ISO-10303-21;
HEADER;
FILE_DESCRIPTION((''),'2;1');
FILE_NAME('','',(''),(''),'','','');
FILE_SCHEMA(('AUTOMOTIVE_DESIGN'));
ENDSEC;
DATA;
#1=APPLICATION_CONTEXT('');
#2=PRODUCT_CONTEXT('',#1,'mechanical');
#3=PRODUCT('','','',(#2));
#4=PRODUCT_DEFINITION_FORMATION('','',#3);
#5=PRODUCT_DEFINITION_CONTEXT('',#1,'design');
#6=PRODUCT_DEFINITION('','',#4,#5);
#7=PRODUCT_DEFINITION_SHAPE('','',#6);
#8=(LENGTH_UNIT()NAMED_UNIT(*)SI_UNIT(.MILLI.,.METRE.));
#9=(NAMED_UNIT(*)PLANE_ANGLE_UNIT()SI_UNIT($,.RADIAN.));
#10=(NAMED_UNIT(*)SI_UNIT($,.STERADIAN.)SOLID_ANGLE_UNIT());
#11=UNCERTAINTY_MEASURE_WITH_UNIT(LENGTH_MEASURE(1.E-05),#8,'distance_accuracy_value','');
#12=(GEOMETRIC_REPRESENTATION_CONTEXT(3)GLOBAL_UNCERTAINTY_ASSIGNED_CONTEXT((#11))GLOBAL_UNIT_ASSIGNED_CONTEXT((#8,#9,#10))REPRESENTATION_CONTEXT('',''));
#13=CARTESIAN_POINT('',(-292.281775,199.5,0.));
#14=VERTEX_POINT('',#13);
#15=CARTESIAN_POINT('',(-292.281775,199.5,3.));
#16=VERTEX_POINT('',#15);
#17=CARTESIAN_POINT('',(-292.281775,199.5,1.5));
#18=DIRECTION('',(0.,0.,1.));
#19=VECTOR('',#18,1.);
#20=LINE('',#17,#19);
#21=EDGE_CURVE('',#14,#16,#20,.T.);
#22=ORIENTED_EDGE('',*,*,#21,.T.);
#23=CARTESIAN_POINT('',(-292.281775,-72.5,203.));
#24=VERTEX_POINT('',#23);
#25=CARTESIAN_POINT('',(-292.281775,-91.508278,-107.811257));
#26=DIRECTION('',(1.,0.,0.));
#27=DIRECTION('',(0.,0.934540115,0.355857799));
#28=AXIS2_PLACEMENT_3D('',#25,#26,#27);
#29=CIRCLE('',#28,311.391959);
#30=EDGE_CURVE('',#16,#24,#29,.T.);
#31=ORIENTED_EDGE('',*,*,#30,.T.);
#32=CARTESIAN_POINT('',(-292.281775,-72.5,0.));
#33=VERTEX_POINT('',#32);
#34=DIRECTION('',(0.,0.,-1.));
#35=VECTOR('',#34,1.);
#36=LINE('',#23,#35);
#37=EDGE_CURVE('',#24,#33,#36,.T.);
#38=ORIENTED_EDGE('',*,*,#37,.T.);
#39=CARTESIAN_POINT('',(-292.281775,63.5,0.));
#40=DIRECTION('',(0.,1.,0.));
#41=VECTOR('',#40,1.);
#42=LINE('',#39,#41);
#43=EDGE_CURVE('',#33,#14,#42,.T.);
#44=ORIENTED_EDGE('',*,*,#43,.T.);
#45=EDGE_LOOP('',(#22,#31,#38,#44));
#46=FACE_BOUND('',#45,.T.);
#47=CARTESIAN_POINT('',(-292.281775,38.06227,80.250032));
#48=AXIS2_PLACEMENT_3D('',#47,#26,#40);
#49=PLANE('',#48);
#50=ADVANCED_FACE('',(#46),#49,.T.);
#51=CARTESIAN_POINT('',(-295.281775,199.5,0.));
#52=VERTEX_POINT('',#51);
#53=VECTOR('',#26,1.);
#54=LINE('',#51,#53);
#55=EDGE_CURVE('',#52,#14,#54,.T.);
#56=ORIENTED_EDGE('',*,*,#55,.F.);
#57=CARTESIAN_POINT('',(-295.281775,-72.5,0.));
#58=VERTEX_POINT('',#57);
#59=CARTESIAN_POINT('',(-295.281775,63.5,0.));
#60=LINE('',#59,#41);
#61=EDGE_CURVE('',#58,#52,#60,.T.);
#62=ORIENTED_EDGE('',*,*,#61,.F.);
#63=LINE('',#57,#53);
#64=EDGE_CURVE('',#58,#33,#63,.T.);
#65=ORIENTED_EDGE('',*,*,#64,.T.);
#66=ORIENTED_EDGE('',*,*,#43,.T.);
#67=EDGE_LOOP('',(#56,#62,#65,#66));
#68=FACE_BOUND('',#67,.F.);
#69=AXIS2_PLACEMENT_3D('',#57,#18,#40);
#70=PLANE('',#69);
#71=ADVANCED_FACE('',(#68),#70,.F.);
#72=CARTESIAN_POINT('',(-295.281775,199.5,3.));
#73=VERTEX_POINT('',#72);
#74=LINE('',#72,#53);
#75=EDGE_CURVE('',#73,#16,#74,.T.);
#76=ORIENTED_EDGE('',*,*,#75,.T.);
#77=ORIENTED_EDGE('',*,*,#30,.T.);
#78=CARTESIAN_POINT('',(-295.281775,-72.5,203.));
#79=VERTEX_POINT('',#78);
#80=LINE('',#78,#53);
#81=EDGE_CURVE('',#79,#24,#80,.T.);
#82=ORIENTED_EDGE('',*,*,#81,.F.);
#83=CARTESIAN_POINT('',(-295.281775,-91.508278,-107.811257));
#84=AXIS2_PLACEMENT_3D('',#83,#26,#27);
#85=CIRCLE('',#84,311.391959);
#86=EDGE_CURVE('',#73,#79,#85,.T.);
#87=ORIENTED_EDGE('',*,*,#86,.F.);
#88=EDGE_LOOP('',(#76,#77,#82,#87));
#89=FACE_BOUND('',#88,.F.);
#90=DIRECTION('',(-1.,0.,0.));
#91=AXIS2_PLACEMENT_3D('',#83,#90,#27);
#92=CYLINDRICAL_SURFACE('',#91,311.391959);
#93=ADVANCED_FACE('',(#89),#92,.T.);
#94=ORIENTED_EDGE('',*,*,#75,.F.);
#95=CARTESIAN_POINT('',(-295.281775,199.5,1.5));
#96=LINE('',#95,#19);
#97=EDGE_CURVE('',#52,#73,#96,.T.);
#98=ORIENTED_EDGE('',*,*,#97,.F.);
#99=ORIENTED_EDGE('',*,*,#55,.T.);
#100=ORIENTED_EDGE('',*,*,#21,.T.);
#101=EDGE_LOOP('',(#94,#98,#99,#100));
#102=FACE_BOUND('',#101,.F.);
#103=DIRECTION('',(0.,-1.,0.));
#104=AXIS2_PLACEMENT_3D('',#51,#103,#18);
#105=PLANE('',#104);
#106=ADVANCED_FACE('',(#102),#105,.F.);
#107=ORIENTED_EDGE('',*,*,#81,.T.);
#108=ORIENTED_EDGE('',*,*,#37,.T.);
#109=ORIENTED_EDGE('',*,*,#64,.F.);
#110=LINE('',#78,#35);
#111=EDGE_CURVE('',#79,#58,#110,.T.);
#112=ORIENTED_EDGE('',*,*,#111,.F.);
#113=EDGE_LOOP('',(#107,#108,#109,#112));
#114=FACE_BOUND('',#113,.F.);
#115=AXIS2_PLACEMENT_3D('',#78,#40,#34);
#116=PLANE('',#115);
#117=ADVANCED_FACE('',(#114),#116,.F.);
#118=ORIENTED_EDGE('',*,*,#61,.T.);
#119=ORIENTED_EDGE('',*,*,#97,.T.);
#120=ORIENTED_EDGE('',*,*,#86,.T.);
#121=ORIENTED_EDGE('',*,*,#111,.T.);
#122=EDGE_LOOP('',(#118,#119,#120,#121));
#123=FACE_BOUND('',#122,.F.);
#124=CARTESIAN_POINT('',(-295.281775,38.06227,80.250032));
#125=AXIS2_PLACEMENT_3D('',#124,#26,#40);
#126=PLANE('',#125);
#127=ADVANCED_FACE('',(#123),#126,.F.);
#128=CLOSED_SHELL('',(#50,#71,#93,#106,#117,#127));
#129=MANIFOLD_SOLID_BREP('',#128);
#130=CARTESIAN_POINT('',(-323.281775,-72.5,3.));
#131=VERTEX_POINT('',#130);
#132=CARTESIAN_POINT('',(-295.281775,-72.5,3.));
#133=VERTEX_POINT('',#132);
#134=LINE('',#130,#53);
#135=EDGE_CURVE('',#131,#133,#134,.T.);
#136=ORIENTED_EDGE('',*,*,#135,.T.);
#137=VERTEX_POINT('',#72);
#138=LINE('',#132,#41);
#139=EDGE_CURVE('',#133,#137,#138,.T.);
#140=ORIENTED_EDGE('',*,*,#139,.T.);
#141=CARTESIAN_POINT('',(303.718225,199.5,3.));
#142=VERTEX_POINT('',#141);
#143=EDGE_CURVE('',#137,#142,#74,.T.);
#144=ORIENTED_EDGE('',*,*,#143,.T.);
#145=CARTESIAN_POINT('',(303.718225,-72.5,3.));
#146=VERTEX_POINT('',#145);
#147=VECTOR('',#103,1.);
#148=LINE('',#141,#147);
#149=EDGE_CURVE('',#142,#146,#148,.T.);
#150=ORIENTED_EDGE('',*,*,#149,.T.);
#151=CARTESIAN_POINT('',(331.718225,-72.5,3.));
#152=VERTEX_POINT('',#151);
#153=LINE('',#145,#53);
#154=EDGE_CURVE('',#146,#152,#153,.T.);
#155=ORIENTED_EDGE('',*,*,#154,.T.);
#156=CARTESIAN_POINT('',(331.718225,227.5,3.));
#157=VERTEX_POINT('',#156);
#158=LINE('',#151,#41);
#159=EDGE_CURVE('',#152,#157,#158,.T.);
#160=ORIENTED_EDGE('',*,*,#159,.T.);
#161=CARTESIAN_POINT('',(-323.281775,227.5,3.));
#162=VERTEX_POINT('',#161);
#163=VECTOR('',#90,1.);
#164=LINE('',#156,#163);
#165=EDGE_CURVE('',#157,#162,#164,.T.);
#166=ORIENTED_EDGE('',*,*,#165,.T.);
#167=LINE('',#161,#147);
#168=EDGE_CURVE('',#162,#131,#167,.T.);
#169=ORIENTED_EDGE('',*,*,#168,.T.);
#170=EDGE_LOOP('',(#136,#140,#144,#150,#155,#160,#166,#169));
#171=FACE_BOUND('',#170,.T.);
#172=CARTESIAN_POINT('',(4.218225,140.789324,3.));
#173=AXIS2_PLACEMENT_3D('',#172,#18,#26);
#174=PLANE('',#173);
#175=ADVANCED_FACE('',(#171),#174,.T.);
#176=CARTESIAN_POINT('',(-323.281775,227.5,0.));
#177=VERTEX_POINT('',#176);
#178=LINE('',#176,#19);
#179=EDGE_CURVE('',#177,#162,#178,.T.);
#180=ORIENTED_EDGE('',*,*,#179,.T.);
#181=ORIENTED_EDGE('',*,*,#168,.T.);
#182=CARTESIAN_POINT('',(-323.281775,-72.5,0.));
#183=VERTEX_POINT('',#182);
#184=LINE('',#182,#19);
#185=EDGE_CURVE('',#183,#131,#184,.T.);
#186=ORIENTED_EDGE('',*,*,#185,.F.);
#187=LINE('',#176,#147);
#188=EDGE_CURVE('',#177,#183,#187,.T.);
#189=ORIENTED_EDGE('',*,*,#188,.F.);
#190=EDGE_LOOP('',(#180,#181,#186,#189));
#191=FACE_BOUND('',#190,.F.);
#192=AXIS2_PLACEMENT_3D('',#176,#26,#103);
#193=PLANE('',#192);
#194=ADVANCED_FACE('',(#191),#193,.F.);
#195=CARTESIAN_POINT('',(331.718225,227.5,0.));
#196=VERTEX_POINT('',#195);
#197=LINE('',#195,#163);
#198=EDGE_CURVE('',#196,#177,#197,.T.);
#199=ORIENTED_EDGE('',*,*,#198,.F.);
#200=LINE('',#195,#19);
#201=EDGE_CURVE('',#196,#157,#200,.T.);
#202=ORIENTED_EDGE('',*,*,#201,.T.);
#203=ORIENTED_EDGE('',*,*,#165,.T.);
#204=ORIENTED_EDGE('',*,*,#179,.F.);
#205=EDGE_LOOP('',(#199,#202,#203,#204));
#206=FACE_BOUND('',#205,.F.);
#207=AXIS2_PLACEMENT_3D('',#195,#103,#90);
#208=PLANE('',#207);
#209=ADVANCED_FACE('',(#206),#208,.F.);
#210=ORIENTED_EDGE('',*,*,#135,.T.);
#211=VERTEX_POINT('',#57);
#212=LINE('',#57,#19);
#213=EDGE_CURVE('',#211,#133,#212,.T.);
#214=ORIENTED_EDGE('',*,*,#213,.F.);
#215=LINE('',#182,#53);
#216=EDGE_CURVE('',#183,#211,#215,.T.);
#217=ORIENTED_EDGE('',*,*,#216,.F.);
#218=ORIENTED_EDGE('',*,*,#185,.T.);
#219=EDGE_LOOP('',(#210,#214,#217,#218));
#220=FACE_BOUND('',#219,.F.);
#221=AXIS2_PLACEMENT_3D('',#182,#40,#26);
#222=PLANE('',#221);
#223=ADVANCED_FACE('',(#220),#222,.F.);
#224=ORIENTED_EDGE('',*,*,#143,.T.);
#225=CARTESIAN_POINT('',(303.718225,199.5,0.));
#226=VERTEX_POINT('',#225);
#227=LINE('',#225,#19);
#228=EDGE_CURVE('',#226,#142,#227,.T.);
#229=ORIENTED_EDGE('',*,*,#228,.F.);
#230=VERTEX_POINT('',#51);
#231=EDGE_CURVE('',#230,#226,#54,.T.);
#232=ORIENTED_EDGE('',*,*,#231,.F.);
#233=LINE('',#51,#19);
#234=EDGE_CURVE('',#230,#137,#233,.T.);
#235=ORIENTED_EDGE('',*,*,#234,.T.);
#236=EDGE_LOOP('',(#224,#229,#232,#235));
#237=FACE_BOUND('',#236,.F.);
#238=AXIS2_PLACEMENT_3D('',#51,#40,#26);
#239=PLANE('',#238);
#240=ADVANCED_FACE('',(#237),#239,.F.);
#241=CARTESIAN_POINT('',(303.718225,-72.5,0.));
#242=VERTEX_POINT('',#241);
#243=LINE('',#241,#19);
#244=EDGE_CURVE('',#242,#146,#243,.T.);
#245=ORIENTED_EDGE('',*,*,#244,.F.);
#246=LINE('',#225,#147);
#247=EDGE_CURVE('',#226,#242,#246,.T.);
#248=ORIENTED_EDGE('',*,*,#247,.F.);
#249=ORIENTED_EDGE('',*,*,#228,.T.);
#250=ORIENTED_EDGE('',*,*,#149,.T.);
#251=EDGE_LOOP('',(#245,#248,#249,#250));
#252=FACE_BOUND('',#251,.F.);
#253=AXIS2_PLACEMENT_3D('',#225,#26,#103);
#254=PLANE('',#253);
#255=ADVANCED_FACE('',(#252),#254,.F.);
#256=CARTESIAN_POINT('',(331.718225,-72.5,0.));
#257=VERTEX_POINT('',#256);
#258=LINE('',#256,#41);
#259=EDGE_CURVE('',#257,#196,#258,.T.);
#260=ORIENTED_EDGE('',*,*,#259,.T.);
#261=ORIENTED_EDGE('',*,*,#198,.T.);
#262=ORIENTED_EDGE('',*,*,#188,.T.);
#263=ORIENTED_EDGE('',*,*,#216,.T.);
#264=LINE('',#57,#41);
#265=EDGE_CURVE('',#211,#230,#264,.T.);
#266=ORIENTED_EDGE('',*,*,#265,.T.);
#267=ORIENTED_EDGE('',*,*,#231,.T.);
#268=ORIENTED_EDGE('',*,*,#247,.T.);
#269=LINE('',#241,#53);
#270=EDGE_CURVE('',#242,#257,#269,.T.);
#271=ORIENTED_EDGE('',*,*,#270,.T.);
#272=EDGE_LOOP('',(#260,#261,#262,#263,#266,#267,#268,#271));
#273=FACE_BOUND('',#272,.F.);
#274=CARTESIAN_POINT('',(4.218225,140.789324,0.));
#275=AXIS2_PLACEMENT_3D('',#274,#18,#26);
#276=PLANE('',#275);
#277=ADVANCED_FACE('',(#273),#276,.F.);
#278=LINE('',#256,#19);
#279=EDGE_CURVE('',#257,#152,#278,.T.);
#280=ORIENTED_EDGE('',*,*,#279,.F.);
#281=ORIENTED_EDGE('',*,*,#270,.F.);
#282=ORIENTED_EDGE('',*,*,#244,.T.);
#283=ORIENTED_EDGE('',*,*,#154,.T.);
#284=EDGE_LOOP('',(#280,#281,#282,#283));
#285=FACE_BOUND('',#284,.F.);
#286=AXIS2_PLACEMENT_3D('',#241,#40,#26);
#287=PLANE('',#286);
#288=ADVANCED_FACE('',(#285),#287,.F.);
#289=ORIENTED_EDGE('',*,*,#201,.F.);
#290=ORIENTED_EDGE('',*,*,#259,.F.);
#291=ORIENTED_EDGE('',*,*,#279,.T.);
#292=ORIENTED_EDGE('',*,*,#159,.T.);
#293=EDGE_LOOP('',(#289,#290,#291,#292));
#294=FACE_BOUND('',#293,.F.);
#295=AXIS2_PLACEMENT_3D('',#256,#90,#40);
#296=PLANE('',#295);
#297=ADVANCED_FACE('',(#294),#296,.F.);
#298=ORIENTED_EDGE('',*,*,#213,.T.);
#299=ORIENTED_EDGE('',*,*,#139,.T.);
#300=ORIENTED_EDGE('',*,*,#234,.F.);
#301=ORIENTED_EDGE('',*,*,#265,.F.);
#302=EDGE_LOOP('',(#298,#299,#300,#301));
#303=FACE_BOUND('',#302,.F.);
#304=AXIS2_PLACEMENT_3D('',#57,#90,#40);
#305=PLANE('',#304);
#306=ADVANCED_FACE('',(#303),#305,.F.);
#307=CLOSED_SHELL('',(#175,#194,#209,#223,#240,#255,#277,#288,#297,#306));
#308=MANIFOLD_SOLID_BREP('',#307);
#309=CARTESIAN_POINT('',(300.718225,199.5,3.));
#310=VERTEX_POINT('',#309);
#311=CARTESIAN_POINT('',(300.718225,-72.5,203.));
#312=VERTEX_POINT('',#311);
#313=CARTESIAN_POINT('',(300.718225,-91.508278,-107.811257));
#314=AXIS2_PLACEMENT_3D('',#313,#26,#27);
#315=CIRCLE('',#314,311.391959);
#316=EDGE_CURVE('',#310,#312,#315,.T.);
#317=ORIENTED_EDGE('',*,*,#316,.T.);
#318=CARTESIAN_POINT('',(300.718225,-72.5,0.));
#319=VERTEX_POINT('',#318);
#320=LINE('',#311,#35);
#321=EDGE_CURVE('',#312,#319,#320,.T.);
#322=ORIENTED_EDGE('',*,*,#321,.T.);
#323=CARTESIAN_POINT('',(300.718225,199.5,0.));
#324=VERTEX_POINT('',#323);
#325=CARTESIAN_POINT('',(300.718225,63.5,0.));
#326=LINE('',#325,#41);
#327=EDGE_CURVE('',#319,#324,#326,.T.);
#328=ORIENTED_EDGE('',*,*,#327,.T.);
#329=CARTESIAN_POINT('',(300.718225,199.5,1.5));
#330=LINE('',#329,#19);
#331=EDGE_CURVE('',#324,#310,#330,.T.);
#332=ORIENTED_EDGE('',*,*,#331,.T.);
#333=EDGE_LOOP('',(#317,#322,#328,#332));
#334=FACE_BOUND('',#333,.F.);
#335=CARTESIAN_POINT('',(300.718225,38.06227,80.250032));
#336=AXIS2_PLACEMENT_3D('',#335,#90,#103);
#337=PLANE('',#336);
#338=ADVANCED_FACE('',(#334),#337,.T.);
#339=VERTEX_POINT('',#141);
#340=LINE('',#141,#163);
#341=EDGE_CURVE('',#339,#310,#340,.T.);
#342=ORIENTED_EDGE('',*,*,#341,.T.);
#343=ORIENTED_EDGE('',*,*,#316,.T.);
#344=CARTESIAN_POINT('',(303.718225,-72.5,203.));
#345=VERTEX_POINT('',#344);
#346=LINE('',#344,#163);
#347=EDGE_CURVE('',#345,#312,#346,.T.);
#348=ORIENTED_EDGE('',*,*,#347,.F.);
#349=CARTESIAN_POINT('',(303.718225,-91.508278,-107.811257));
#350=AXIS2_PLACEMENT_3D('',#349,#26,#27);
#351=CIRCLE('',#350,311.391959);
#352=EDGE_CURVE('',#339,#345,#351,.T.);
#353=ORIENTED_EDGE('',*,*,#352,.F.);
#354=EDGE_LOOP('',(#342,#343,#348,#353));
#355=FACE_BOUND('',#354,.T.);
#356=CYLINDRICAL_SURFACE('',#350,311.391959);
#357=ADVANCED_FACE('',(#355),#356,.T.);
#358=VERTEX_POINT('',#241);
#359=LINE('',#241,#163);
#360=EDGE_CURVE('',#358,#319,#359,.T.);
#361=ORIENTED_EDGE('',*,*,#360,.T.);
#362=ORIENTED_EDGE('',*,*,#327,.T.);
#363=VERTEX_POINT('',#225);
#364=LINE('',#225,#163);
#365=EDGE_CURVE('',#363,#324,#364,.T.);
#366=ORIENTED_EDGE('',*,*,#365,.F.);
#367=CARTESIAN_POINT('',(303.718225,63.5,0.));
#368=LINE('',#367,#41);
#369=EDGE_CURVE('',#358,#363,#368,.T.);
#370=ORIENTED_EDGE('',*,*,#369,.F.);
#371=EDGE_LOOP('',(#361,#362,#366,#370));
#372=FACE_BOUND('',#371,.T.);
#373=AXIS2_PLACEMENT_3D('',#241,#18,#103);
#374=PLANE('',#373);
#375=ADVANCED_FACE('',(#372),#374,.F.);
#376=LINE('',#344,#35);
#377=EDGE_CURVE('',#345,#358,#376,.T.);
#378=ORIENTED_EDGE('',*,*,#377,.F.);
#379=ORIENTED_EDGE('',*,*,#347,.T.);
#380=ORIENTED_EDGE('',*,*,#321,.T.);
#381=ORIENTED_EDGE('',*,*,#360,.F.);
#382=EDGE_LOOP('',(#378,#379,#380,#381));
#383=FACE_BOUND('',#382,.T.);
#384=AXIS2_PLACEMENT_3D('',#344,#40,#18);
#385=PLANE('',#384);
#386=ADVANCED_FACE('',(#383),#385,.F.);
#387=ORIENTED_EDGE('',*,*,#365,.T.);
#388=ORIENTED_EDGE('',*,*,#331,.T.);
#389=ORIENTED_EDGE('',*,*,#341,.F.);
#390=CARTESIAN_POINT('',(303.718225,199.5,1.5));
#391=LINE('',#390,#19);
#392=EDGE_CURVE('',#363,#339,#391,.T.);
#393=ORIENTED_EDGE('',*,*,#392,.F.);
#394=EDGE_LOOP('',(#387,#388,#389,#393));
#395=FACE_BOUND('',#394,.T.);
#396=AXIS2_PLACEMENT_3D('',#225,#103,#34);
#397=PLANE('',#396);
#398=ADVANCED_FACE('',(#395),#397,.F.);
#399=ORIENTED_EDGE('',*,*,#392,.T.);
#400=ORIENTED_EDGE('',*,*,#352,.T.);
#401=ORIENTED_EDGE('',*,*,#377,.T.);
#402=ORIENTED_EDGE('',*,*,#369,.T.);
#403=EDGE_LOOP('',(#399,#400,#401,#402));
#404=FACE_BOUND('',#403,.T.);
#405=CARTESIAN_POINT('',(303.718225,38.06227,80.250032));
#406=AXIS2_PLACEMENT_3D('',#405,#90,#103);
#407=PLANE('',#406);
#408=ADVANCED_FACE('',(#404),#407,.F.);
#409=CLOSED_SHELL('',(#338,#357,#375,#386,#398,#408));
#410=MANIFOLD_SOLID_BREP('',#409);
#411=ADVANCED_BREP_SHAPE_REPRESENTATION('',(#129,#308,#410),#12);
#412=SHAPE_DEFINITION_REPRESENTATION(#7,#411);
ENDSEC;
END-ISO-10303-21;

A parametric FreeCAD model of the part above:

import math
import FreeCAD as App
import Part
import Sketcher
from FreeCAD import Vector
Q = App.Units.Quantity

doc = App.newDocument("Part")
body = doc.addObject("PartDesign::Body", "Body")

sketch1 = doc.addObject("Sketcher::SketchObject", "Sketch")
body.addObject(sketch1)
sketch1.AttachmentSupport = (doc.XY_Plane, [""])
sketch1.MapMode = "FlatFace"
sketch1.addGeometry(Part.LineSegment(Vector(304, -72, 0), Vector(332, -72, 0)), False)
sketch1.addGeometry(Part.LineSegment(Vector(332, -72, 0), Vector(332, 228, 0)), False)
sketch1.addGeometry(Part.LineSegment(Vector(332, 228, 0), Vector(-323, 228, 0)), False)
sketch1.addGeometry(Part.LineSegment(Vector(-323, 228, 0), Vector(-323, -72, 0)), False)
sketch1.addGeometry(Part.LineSegment(Vector(-323, -72, 0), Vector(-295, -72, 0)), False)
sketch1.addGeometry(Part.LineSegment(Vector(-295, -72, 0), Vector(-295, 200, 0)), False)
sketch1.addGeometry(Part.LineSegment(Vector(-295, 200, 0), Vector(304, 200, 0)), False)
sketch1.addGeometry(Part.LineSegment(Vector(304, 200, 0), Vector(304, -72, 0)), False)
sketch1.addConstraint(Sketcher.Constraint("Coincident", 0, 2, 1, 1))
sketch1.addConstraint(Sketcher.Constraint("Coincident", 1, 2, 2, 1))
sketch1.addConstraint(Sketcher.Constraint("Coincident", 2, 2, 3, 1))
sketch1.addConstraint(Sketcher.Constraint("Coincident", 3, 2, 4, 1))
sketch1.addConstraint(Sketcher.Constraint("Coincident", 4, 2, 5, 1))
sketch1.addConstraint(Sketcher.Constraint("Coincident", 5, 2, 6, 1))
sketch1.addConstraint(Sketcher.Constraint("Coincident", 6, 2, 7, 1))
sketch1.addConstraint(Sketcher.Constraint("Coincident", 7, 2, 0, 1))
sketch1.addConstraint(Sketcher.Constraint("Horizontal", 0))
sketch1.addConstraint(Sketcher.Constraint("Vertical", 1))
sketch1.addConstraint(Sketcher.Constraint("Horizontal", 2))
sketch1.addConstraint(Sketcher.Constraint("Vertical", 3))
sketch1.addConstraint(Sketcher.Constraint("Horizontal", 4))
sketch1.addConstraint(Sketcher.Constraint("Vertical", 5))
sketch1.addConstraint(Sketcher.Constraint("Horizontal", 6))
sketch1.addConstraint(Sketcher.Constraint("Vertical", 7))
sketch1.addConstraint(Sketcher.Constraint("Horizontal", 0, 2, 3, 2))
sketch1.addConstraint(Sketcher.Constraint("Equal", 0, 4))
sketch1.addConstraint(Sketcher.Constraint("DistanceX", 0, 1, 0, 2, Q("28 mm")))
sketch1.addConstraint(Sketcher.Constraint("DistanceX", 2, 2, 2, 1, Q("655 mm")))
sketch1.addConstraint(Sketcher.Constraint("DistanceY", 1, 1, 1, 2, Q("300 mm")))
sketch1.addConstraint(Sketcher.Constraint("DistanceY", 5, 1, 5, 2, Q("272 mm")))
sketch1.addConstraint(Sketcher.Constraint("DistanceY", 0, 2, -1, 1, Q("72.5 mm")))
sketch1.addConstraint(Sketcher.Constraint("DistanceX", -1, 1, 0, 2, Q("331.718225 mm")))
pad1 = doc.addObject("PartDesign::Pad", "Pad")
body.addObject(pad1)
pad1.Profile = sketch1
pad1.Length = 3
body2 = doc.addObject("PartDesign::Body", "Body001")

sketch2 = doc.addObject("Sketcher::SketchObject", "Sketch001")
body2.addObject(sketch2)
sketch2.AttachmentSupport = (doc.getObject("YZ_Plane001"), [""])
sketch2.MapMode = "FlatFace"
sketch2.AttachmentOffset = App.Placement(Vector(0, 0, -295.281775), App.Rotation())
sketch2.addGeometry(Part.LineSegment(Vector(-72.5, 203, 0), Vector(-72.5, 0, 0)), False)
sketch2.addGeometry(Part.LineSegment(Vector(-72.5, 0, 0), Vector(199.5, 0, 0)), False)
sketch2.addGeometry(Part.LineSegment(Vector(199.5, 0, 0), Vector(199.5, 3, 0)), False)
sketch2.addGeometry(Part.ArcOfCircle(Part.Circle(Vector(-91.5, -107.8, 0), Vector(0, 0, 1), 311.4), math.radians(21), math.radians(87)), False)
sketch2.addConstraint(Sketcher.Constraint("Coincident", 0, 2, 1, 1))
sketch2.addConstraint(Sketcher.Constraint("Coincident", 1, 2, 2, 1))
sketch2.addConstraint(Sketcher.Constraint("Coincident", 2, 2, 3, 1))
sketch2.addConstraint(Sketcher.Constraint("Coincident", 3, 2, 0, 1))
sketch2.addConstraint(Sketcher.Constraint("Vertical", 0))
sketch2.addConstraint(Sketcher.Constraint("Horizontal", 1))
sketch2.addConstraint(Sketcher.Constraint("Vertical", 2))
sketch2.addConstraint(Sketcher.Constraint("PointOnObject", 0, 2, -1))
sketch2.addConstraint(Sketcher.Constraint("DistanceX", 1, 1, 1, 2, Q("272 mm")))
sketch2.addConstraint(Sketcher.Constraint("DistanceY", 0, 2, 0, 1, Q("203 mm")))
sketch2.addConstraint(Sketcher.Constraint("DistanceY", 2, 1, 2, 2, Q("3 mm")))
sketch2.addConstraint(Sketcher.Constraint("DistanceX", 0, 2, -1, 1, Q("72.5 mm")))
sketch2.addConstraint(Sketcher.Constraint("Radius", 3, Q("311.391959 mm")))
pad2 = doc.addObject("PartDesign::Pad", "Pad001")
body2.addObject(pad2)
pad2.Profile = sketch2
pad2.Length = 3
body3 = doc.addObject("PartDesign::Body", "Body002")
doc.recompute()

mirroring = doc.addObject("Part::Mirroring", "Mirroring")
mirroring.Source = body2
mirroring.Base = Vector(4.218225, 0, 0)
mirroring.Normal = Vector(1, 0, 0)
body3.BaseFeature = mirroring
doc.recompute()
mirroring.Visibility = False

doc.recompute()
